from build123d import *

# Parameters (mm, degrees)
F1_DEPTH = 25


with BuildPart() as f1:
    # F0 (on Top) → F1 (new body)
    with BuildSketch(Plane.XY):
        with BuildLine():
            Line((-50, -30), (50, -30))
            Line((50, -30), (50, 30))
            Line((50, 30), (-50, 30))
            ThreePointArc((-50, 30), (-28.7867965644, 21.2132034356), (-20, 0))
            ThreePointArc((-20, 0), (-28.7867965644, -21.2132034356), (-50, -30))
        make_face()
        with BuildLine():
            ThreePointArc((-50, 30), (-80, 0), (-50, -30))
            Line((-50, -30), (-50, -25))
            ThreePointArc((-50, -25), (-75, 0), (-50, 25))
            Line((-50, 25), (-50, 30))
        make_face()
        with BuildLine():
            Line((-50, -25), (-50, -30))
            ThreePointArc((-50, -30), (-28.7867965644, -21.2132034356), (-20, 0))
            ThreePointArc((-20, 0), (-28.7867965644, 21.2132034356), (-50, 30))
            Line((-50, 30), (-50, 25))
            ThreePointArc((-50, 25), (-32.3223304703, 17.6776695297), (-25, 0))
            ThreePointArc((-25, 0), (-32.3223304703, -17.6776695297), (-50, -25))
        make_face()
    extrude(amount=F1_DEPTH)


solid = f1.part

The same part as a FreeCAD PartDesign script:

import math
import FreeCAD as App
import Part
import Sketcher
from FreeCAD import Vector
Q = App.Units.Quantity

doc = App.newDocument("Part")
body = doc.addObject("PartDesign::Body", "Body")

# Sketch on XY plane
sketch1 = body.newObject("Sketcher::SketchObject", "Sketch")
sketch1.AttachmentSupport = (doc.getObject("XY_Plane"), [""])
sketch1.MapMode = "FlatFace"
sketch1.addGeometry(Part.LineSegment(Vector(-50, -30, 0), Vector(50, -30, 0)), False)
sketch1.addGeometry(Part.LineSegment(Vector(50, -30, 0), Vector(50, 30, 0)), False)
sketch1.addGeometry(Part.LineSegment(Vector(50, 30, 0), Vector(-50, 30, 0)), False)
sketch1.addGeometry(Part.ArcOfCircle(Part.Circle(Vector(-50, 0, 0), Vector(0, 0, 1), 30), math.radians(90), math.radians(270)), False)
sketch1.addGeometry(Part.ArcOfCircle(Part.Circle(Vector(-50, 0, 0), Vector(0, 0, 1), 25), math.radians(-90), math.radians(0)), False)
sketch1.addGeometry(Part.ArcOfCircle(Part.Circle(Vector(-50, 0, 0), Vector(0, 0, 1), 25), math.radians(90), math.radians(270)), False)
sketch1.addGeometry(Part.ArcOfCircle(Part.Circle(Vector(-50, 0, 0), Vector(0, 0, 1), 25), math.radians(0), math.radians(90)), False)
sketch1.addConstraint(Sketcher.Constraint("Coincident", 0, 2, 1, 1))
sketch1.addConstraint(Sketcher.Constraint("Coincident", 1, 2, 2, 1))
sketch1.addConstraint(Sketcher.Constraint("Tangent", 2, 2, 3, 1))
sketch1.addConstraint(Sketcher.Constraint("Tangent", 3, 2, 0, 1))
sketch1.addConstraint(Sketcher.Constraint("Tangent", 4, 1, 5, 2))
sketch1.addConstraint(Sketcher.Constraint("Tangent", 5, 1, 6, 2))
sketch1.addConstraint(Sketcher.Constraint("Tangent", 6, 1, 4, 2))
sketch1.addConstraint(Sketcher.Constraint("Horizontal", 0))
sketch1.addConstraint(Sketcher.Constraint("Vertical", 1))
sketch1.addConstraint(Sketcher.Constraint("Horizontal", 2))
sketch1.addConstraint(Sketcher.Constraint("Coincident", 4, 3, 3, 3))
sketch1.addConstraint(Sketcher.Constraint("Symmetric", 0, 2, 2, 2, -1, 1))
sketch1.addConstraint(Sketcher.Constraint("PointOnObject", 6, 1, -1))
sketch1.addConstraint(Sketcher.Constraint("Vertical", 3, 2, 4, 1))
sketch1.addConstraint(Sketcher.Constraint("Vertical", 4, 1, 5, 1))
sketch1.addConstraint(Sketcher.Constraint("Radius", 3, Q("30 mm")))
sketch1.addConstraint(Sketcher.Constraint("Radius", 4, Q("25 mm")))
sketch1.addConstraint(Sketcher.Constraint("DistanceX", 0, 1, 0, 2, Q("100 mm")))
pad1 = body.newObject("PartDesign::Pad", "Pad")
pad1.Profile = sketch1
pad1.Length = 25

doc.recompute()
